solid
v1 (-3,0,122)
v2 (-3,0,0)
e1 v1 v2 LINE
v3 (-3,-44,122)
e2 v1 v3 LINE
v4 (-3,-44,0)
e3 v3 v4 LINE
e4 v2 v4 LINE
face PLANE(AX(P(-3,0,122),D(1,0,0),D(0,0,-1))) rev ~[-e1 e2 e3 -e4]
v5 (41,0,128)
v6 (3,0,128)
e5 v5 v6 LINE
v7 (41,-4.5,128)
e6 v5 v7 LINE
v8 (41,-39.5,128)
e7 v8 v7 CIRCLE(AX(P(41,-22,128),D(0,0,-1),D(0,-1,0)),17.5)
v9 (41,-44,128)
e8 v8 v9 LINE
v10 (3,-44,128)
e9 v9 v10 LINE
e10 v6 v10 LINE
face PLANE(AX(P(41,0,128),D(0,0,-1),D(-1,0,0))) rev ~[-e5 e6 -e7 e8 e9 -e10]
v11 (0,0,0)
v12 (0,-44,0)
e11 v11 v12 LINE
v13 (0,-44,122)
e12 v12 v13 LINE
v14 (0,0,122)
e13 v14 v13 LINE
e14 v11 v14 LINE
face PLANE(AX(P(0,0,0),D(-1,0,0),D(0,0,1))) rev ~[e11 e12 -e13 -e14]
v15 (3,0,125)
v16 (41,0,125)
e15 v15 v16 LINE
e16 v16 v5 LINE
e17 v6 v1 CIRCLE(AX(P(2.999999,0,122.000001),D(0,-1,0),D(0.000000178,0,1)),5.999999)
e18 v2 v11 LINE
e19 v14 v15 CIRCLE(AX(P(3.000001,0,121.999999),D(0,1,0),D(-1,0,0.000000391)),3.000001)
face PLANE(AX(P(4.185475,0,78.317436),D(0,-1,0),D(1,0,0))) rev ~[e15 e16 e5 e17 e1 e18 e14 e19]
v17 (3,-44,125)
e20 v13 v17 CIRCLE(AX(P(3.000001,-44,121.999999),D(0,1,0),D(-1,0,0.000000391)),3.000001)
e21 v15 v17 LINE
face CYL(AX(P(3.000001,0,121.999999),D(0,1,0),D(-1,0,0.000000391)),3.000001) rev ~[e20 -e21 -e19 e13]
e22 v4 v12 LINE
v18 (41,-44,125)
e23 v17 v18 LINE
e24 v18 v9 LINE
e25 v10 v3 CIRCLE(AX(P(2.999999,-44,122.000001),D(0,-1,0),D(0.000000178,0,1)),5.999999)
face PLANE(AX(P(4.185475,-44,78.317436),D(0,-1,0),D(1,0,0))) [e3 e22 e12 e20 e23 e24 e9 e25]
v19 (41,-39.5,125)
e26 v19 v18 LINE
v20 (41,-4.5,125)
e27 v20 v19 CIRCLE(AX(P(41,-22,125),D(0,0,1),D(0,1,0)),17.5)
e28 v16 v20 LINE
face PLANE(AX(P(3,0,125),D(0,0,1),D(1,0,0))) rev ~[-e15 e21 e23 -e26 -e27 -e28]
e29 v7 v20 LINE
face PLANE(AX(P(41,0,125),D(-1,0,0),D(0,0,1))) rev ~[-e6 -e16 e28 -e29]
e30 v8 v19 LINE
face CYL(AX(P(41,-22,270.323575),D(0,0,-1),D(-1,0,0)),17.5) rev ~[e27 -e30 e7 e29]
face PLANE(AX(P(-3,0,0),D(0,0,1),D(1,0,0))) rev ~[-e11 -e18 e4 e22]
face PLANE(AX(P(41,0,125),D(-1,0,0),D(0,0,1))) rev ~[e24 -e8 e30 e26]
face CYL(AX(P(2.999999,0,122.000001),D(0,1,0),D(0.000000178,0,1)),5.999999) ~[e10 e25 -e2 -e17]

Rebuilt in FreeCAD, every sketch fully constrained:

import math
import FreeCAD as App
import Part
import Sketcher
from FreeCAD import Vector
Q = App.Units.Quantity

doc = App.newDocument("Part")
body = doc.addObject("PartDesign::Body", "Body")

# Sketch on XZ plane
sketch1 = doc.addObject("Sketcher::SketchObject", "Sketch")
body.addObject(sketch1)
sketch1.AttachmentSupport = (doc.XZ_Plane, [""])
sketch1.MapMode = "FlatFace"
sketch1.addGeometry(Part.LineSegment(Vector(-3, 0, 0), Vector(0, 0, 0)), False)
sketch1.addGeometry(Part.LineSegment(Vector(0, 0, 0), Vector(0, 122, 0)), False)
sketch1.addGeometry(Part.ArcOfCircle(Part.Circle(Vector(3, 122, 0), Vector(0, 0, 1), 3), math.radians(90), math.radians(180)), False)
sketch1.addGeometry(Part.LineSegment(Vector(3, 125, 0), Vector(41, 125, 0)), False)
sketch1.addGeometry(Part.LineSegment(Vector(41, 125, 0), Vector(41, 128, 0)), False)
sketch1.addGeometry(Part.LineSegment(Vector(41, 128, 0), Vector(3, 128, 0)), False)
sketch1.addGeometry(Part.ArcOfCircle(Part.Circle(Vector(3, 122, 0), Vector(0, 0, 1), 6), math.radians(90), math.radians(180)), False)
sketch1.addGeometry(Part.LineSegment(Vector(-3, 122, 0), Vector(-3, 0, 0)), False)
sketch1.addConstraint(Sketcher.Constraint("Coincident", 0, 2, 1, 1))
sketch1.addConstraint(Sketcher.Constraint("Tangent", 1, 2, 2, 2))
sketch1.addConstraint(Sketcher.Constraint("Tangent", 2, 1, 3, 1))
sketch1.addConstraint(Sketcher.Constraint("Coincident", 3, 2, 4, 1))
sketch1.addConstraint(Sketcher.Constraint("Coincident", 4, 2, 5, 1))
sketch1.addConstraint(Sketcher.Constraint("Tangent", 5, 2, 6, 1))
sketch1.addConstraint(Sketcher.Constraint("Tangent", 6, 2, 7, 1))
sketch1.addConstraint(Sketcher.Constraint("Coincident", 7, 2, 0, 1))
sketch1.addConstraint(Sketcher.Constraint("Horizontal", 0))
sketch1.addConstraint(Sketcher.Constraint("Vertical", 1))
sketch1.addConstraint(Sketcher.Constraint("Horizontal", 3))
sketch1.addConstraint(Sketcher.Constraint("Vertical", 4))
sketch1.addConstraint(Sketcher.Constraint("Horizontal", 5))
sketch1.addConstraint(Sketcher.Constraint("Vertical", 7))
sketch1.addConstraint(Sketcher.Constraint("Coincident", 0, 2, -1, 1))
sketch1.addConstraint(Sketcher.Constraint("Coincident", 6, 3, 2, 3))
sketch1.addConstraint(Sketcher.Constraint("Radius", 2, Q("3.000001 mm")))
sketch1.addConstraint(Sketcher.Constraint("Radius", 6, Q("5.999999 mm")))
sketch1.addConstraint(Sketcher.Constraint("DistanceX", 3, 1, 3, 2, Q("38 mm")))
sketch1.addConstraint(Sketcher.Constraint("DistanceY", 1, 1, 1, 2, Q("122 mm")))
pad1 = doc.addObject("PartDesign::Pad", "Pad")
body.addObject(pad1)
pad1.Profile = sketch1
pad1.Length = 44

# Sketch on XY plane
sketch2 = doc.addObject("Sketcher::SketchObject", "Sketch001")
body.addObject(sketch2)
sketch2.AttachmentSupport = (doc.XY_Plane, [""])
sketch2.MapMode = "FlatFace"
sketch2.AttachmentOffset = App.Placement(Vector(0, 0, 128), App.Rotation())
sketch2.addGeometry(Part.Circle(Vector(41, -22, 0), Vector(0, 0, 1), 18), False)
sketch2.addConstraint(Sketcher.Constraint("Diameter", 0, Q("35 mm")))
sketch2.addConstraint(Sketcher.Constraint("DistanceX", -1, 1, 0, 3, Q("41 mm")))
sketch2.addConstraint(Sketcher.Constraint("DistanceY", 0, 3, -1, 1, Q("22 mm")))
doc.recompute()
hole = doc.addObject("PartDesign::Hole", "Hole")
body.addObject(hole)
hole.Profile = sketch2
hole.ThreadType = "None"
hole.Diameter = 35
hole.DepthType = "ThroughAll"

doc.recompute()
